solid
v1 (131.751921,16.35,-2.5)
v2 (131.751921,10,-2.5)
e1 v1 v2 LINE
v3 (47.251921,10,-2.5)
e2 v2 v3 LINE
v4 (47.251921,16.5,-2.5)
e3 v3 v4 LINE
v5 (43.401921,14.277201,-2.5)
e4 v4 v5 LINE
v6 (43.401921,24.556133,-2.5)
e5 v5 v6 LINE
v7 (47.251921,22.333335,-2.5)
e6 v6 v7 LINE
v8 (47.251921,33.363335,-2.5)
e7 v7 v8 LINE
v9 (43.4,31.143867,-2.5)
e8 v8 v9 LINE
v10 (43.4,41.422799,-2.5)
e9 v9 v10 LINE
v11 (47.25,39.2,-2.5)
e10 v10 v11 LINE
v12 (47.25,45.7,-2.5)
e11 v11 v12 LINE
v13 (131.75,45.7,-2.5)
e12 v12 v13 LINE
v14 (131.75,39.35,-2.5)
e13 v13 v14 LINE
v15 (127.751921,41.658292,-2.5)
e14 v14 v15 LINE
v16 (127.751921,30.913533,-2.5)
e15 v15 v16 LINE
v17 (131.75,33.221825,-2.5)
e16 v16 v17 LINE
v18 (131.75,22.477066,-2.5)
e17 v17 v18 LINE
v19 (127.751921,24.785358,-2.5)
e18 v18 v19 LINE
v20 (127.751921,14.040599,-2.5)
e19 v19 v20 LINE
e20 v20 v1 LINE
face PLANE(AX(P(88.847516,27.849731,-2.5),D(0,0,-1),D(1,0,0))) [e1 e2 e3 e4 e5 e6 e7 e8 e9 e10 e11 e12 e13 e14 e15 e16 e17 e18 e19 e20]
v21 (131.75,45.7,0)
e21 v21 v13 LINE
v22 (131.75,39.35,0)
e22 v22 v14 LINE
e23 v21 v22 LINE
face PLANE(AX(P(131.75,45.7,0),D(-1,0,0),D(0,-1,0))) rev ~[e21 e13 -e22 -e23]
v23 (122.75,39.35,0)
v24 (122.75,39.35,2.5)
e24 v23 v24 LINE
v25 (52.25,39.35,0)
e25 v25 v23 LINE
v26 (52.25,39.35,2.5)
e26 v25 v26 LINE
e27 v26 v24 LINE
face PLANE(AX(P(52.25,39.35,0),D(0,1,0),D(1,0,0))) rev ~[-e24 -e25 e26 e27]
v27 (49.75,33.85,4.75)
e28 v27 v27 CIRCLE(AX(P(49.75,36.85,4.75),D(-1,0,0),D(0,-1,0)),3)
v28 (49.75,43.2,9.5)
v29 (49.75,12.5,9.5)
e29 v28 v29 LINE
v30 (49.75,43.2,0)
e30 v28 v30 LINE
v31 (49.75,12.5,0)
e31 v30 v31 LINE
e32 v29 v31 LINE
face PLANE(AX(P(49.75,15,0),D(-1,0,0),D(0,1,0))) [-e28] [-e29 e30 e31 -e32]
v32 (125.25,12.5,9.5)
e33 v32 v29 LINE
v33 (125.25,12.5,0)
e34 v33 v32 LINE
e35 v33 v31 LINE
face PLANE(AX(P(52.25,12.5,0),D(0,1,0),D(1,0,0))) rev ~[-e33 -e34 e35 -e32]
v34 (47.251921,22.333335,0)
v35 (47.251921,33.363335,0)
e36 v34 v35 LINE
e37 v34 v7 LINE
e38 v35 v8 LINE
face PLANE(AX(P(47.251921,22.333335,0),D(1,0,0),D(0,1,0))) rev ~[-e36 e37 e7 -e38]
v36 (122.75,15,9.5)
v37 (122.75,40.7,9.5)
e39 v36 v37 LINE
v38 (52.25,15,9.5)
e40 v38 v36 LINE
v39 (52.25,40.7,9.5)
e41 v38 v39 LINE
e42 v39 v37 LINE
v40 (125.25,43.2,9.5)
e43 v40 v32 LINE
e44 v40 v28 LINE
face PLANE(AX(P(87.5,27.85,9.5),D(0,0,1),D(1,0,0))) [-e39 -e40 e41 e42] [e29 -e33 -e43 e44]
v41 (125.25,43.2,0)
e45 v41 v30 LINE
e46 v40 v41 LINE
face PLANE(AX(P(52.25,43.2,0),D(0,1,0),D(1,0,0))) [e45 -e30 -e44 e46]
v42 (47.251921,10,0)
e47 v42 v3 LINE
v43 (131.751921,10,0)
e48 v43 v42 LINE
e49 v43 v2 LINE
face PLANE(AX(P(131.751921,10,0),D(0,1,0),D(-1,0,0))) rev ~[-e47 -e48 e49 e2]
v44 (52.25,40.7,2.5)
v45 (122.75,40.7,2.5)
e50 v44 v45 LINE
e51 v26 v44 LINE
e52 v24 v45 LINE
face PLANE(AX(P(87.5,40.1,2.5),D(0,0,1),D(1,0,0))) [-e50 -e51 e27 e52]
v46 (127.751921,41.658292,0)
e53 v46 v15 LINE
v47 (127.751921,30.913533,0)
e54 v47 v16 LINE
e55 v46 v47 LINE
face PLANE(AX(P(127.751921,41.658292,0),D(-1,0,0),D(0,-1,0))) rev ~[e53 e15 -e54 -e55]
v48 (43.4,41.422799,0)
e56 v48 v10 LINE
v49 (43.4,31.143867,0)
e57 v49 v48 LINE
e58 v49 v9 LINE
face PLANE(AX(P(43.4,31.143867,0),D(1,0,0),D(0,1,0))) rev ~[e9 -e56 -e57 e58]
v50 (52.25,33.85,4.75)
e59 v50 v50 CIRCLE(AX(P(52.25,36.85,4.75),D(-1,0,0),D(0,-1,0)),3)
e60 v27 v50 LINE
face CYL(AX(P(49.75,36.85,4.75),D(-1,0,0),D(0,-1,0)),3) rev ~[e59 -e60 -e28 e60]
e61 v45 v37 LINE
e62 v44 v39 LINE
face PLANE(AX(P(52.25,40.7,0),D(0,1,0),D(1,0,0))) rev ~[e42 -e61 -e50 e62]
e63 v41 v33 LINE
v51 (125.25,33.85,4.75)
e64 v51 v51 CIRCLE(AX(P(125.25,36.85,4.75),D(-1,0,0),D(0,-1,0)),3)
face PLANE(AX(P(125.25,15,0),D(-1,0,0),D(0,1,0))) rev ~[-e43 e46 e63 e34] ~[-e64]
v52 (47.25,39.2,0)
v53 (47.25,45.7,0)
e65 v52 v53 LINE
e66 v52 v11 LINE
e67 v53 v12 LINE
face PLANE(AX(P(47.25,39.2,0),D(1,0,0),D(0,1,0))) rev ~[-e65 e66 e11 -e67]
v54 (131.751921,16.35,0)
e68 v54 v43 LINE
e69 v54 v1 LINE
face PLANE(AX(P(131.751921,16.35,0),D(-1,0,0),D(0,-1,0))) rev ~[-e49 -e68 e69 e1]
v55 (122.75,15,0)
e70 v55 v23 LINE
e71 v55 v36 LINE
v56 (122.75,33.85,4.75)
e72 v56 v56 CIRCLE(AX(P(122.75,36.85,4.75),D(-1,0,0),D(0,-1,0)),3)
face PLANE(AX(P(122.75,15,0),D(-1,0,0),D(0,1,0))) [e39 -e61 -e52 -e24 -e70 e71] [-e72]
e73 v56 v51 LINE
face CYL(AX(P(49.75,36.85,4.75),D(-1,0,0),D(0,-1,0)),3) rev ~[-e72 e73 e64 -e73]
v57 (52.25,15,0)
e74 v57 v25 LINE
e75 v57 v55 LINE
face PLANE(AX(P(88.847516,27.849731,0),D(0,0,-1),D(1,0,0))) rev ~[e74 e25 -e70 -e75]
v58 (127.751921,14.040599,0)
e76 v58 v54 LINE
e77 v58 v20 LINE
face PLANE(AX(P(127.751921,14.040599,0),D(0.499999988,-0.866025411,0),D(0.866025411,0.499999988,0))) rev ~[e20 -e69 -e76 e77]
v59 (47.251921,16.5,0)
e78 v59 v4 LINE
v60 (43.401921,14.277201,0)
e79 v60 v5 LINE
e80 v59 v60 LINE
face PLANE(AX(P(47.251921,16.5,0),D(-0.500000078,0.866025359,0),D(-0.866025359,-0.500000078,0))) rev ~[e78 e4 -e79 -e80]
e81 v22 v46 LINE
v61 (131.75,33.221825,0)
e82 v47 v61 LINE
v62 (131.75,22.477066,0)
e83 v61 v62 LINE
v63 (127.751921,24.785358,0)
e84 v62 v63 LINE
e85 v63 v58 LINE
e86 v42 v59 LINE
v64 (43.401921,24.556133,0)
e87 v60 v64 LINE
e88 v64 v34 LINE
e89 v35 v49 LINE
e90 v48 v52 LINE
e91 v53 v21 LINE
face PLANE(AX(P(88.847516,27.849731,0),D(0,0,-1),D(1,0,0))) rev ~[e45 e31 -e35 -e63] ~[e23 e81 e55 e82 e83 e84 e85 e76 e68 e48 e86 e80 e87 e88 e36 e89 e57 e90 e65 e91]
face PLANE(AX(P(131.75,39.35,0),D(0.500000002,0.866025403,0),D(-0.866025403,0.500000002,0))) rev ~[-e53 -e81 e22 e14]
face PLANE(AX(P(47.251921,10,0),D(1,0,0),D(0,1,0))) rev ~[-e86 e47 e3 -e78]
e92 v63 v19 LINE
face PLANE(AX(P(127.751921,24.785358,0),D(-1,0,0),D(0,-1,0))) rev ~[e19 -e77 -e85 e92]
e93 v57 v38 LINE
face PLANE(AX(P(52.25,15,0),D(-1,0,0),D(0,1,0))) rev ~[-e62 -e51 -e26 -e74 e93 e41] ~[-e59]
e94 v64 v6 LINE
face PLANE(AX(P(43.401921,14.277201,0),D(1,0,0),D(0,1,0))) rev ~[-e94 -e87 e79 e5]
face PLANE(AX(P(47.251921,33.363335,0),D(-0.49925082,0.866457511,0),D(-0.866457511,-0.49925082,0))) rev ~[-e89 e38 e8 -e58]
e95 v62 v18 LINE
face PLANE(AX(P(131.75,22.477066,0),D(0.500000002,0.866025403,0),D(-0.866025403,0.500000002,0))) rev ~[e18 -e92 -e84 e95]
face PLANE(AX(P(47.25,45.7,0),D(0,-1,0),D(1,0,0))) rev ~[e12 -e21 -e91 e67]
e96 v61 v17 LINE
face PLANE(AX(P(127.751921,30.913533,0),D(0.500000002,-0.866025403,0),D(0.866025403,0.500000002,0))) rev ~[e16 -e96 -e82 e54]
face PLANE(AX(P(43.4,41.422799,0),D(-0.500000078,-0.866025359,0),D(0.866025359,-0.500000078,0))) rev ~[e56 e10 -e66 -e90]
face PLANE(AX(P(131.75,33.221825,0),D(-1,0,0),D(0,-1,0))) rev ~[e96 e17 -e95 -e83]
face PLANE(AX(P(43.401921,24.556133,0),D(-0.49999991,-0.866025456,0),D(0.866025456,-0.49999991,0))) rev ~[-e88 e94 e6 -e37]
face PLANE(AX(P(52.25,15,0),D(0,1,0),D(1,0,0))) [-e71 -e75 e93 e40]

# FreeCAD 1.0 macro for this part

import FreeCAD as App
import Part
import Sketcher

V = App.Vector
Q = App.Units.Quantity


def faces_at(feature, points):
    """Names of the faces that lie closest to the given points."""
    faces = feature.Shape.Faces
    near = lambda p: min(range(len(faces)), key=lambda i: faces[i].distToShape(Part.Vertex(*p))[0])
    return sorted({f"Face{near(p) + 1}" for p in points})

doc = App.newDocument("Part")
params = doc.addObject("Spreadsheet::Sheet", "Params")
for row, (alias, value) in enumerate([
    ("sketch1_width", "70.5 mm"),
    ("sketch1_height", "25.7 mm"),
    ("pad1_length", "9.5 mm"),
    ("thickness_wall", "2.5 mm"),
    ("sketch2_diameter", "6 mm"),
    ("sketch3_width", "70.5 mm"),
    ("sketch3_height", "1.5 mm"),
    ("pad2_length", "2.5 mm"),
    ("sketch4_width", "84.5 mm"),
    ("sketch4_height", "6.5 mm"),
    ("sketch4_height2", "6.35 mm"),
    ("sketch4_height3", "11.03 mm"),
    ("pad3_length", "2.5 mm"),
], start=1):
    params.set(f"A{row}", alias)
    params.set(f"B{row}", "=" + value)
    params.setAlias(f"B{row}", alias)

body = doc.addObject("PartDesign::Body", "Body")

# Sketch on XY plane
sketch1 = body.newObject("Sketcher::SketchObject", "Sketch")
sketch1.AttachmentSupport = (doc.getObject("XY_Plane"), [""])
sketch1.MapMode = "FlatFace"
sketch1.addGeometry([
    Part.LineSegment(V(-35, -35, 0), V(-35, -61, 0)),
    Part.LineSegment(V(-35, -61, 0), V(35, -61, 0)),
    Part.LineSegment(V(35, -61, 0), V(35, -35, 0)),
    Part.LineSegment(V(35, -35, 0), V(-35, -35, 0)),
], False)
sketch1.addConstraint([
    Sketcher.Constraint("Coincident", 0, 2, 1, 1),
    Sketcher.Constraint("Coincident", 1, 2, 2, 1),
    Sketcher.Constraint("Coincident", 2, 2, 3, 1),
    Sketcher.Constraint("Coincident", 3, 2, 0, 1),
    Sketcher.Constraint("Vertical", 0),
    Sketcher.Constraint("Horizontal", 1),
    Sketcher.Constraint("Vertical", 2),
    Sketcher.Constraint("Horizontal", 3),
    Sketcher.Constraint("DistanceX", 1, 1, 1, 2, 70.5),
    Sketcher.Constraint("DistanceY", 0, 2, 0, 1, 25.7),
    Sketcher.Constraint("DistanceX", 0, 2, -1, 1, 35.25),
    Sketcher.Constraint("DistanceY", 0, 2, -1, 1, 60.85),
])
sketch1.setExpression("Constraints[8]", "Params.sketch1_width")
sketch1.setExpression("Constraints[9]", "Params.sketch1_height")
pad1 = body.newObject("PartDesign::Pad", "Pad")
pad1.Profile = sketch1
pad1.setExpression("Length", "Params.pad1_length")
doc.recompute()

thickness = body.newObject("PartDesign::Thickness", "Thickness")
thickness.Base = (pad1, faces_at(pad1, [(0, -48, 9.5), (0, -48, 0)]))
thickness.setExpression("Value", "Params.thickness_wall")
thickness.Reversed = False
thickness.Join = "Intersection"

# Sketch on YZ plane
sketch2 = body.newObject("Sketcher::SketchObject", "Sketch001")
sketch2.AttachmentSupport = (doc.getObject("YZ_Plane"), [""])
sketch2.MapMode = "FlatFace"
sketch2.AttachmentOffset = App.Placement(V(0, 0, -37.75), App.Rotation())
sketch2.addGeometry(Part.Circle(V(-39, 4.8, 0), V(0, 0, 1), 3), False)
sketch2.addConstraint([
    Sketcher.Constraint("Diameter", 0, 6.0),
    Sketcher.Constraint("DistanceX", 0, 3, -1, 1, 39.0),
    Sketcher.Constraint("DistanceY", -1, 1, 0, 3, 4.75),
])
sketch2.setExpression("Constraints[0]", "Params.sketch2_diameter")
pocket1 = body.newObject("PartDesign::Pocket", "Pocket")
pocket1.Profile = sketch2
pocket1.Type = "ThroughAll"
pocket1.Reversed = True

# Sketch on XY plane
sketch3 = body.newObject("Sketcher::SketchObject", "Sketch002")
sketch3.AttachmentSupport = (doc.getObject("XY_Plane"), [""])
sketch3.MapMode = "FlatFace"
sketch3.addGeometry([
    Part.LineSegment(V(-35.2, -35, 0), V(-35.2, -36.5, 0)),
    Part.LineSegment(V(-35.2, -36.5, 0), V(35.2, -36.5, 0)),
    Part.LineSegment(V(35.2, -36.5, 0), V(35.2, -35, 0)),
    Part.LineSegment(V(35.2, -35, 0), V(-35.2, -35, 0)),
], False)
sketch3.addConstraint([
    Sketcher.Constraint("Coincident", 0, 2, 1, 1),
    Sketcher.Constraint("Coincident", 1, 2, 2, 1),
    Sketcher.Constraint("Coincident", 2, 2, 3, 1),
    Sketcher.Constraint("Coincident", 3, 2, 0, 1),
    Sketcher.Constraint("Vertical", 0),
    Sketcher.Constraint("Horizontal", 1),
    Sketcher.Constraint("Vertical", 2),
    Sketcher.Constraint("Horizontal", 3),
    Sketcher.Constraint("DistanceX", 1, 1, 1, 2, 70.5),
    Sketcher.Constraint("DistanceY", 0, 2, 0, 1, 1.5),
    Sketcher.Constraint("DistanceY", 2, 2, -1, 1, 35.0),
    Sketcher.Constraint("DistanceX", 0, 2, -1, 1, 35.25),
])
sketch3.setExpression("Constraints[8]", "Params.sketch3_width")
sketch3.setExpression("Constraints[9]", "Params.sketch3_height")
pad2 = body.newObject("PartDesign::Pad", "Pad001")
pad2.Profile = sketch3
pad2.setExpression("Length", "Params.pad2_length")
body2 = doc.addObject("PartDesign::Body", "Body001")
doc.recompute()

body.Placement = App.Placement(V(84.5, 36.85, 0), App.Rotation(V(0, 0, 1), 0))
boolean = body2.newObject("PartDesign::Boolean", "Boolean")
boolean.Type = "Fuse"
boolean.addObjects([body])
body3 = doc.addObject("PartDesign::Body", "Body002")

# Sketch on XY plane
sketch4 = body3.newObject("Sketcher::SketchObject", "Sketch003")
sketch4.AttachmentSupport = (doc.getObject("XY_Plane002"), [""])
sketch4.MapMode = "FlatFace"
sketch4.addGeometry([
    Part.LineSegment(V(-40.2, -30.1, 0), V(44.2, -30.1, 0)),  # 0
    Part.LineSegment(V(44.2, -30.1, 0), V(44.2, -36.5, 0)),  # 1
    Part.LineSegment(V(44.2, -36.5, 0), V(40.3, -34.2, 0)),  # 2
    Part.LineSegment(V(40.3, -34.2, 0), V(40.3, -44.9, 0)),  # 3
    Part.LineSegment(V(40.3, -44.9, 0), V(44.2, -42.6, 0)),  # 4
    Part.LineSegment(V(44.2, -42.6, 0), V(44.2, -53.4, 0)),  # 5
    Part.LineSegment(V(44.2, -53.4, 0), V(40.3, -51.1, 0)),  # 6
    Part.LineSegment(V(40.3, -51.1, 0), V(40.3, -61.8, 0)),  # 7
    Part.LineSegment(V(40.3, -61.8, 0), V(44.3, -59.5, 0)),  # 8
    Part.LineSegment(V(44.3, -59.5, 0), V(44.3, -65.8, 0)),  # 9
    Part.LineSegment(V(44.3, -65.8, 0), V(-40.2, -65.8, 0)),  # 10
    Part.LineSegment(V(-40.2, -65.8, 0), V(-40.2, -59.4, 0)),  # 11
    Part.LineSegment(V(-40.2, -59.4, 0), V(-44.1, -61.6, 0)),  # 12
    Part.LineSegment(V(-44.1, -61.6, 0), V(-44.1, -51.3, 0)),  # 13
    Part.LineSegment(V(-44.1, -51.3, 0), V(-40.2, -53.5, 0)),  # 14
    Part.LineSegment(V(-40.2, -53.5, 0), V(-40.2, -42.5, 0)),  # 15
    Part.LineSegment(V(-40.2, -42.5, 0), V(-44.1, -44.7, 0)),  # 16
    Part.LineSegment(V(-44.1, -44.7, 0), V(-44.1, -34.4, 0)),  # 17
    Part.LineSegment(V(-44.1, -34.4, 0), V(-40.2, -36.6, 0)),  # 18
    Part.LineSegment(V(-40.2, -36.6, 0), V(-40.2, -30.1, 0)),  # 19
], False)
sketch4.addConstraint([
    Sketcher.Constraint("Coincident", 0, 2, 1, 1),
    Sketcher.Constraint("Coincident", 1, 2, 2, 1),
    Sketcher.Constraint("Coincident", 2, 2, 3, 1),
    Sketcher.Constraint("Coincident", 3, 2, 4, 1),
    Sketcher.Constraint("Coincident", 4, 2, 5, 1),
    Sketcher.Constraint("Coincident", 5, 2, 6, 1),
    Sketcher.Constraint("Coincident", 6, 2, 7, 1),
    Sketcher.Constraint("Coincident", 7, 2, 8, 1),
    Sketcher.Constraint("Coincident", 8, 2, 9, 1),
    Sketcher.Constraint("Coincident", 9, 2, 10, 1),
    Sketcher.Constraint("Coincident", 10, 2, 11, 1),
    Sketcher.Constraint("Coincident", 11, 2, 12, 1),
    Sketcher.Constraint("Coincident", 12, 2, 13, 1),
    Sketcher.Constraint("Coincident", 13, 2, 14, 1),
    Sketcher.Constraint("Coincident", 14, 2, 15, 1),
    Sketcher.Constraint("Coincident", 15, 2, 16, 1),
    Sketcher.Constraint("Coincident", 16, 2, 17, 1),
    Sketcher.Constraint("Coincident", 17, 2, 18, 1),
    Sketcher.Constraint("Coincident", 18, 2, 19, 1),
    Sketcher.Constraint("Coincident", 19, 2, 0, 1),
    Sketcher.Constraint("Horizontal", 0),
    Sketcher.Constraint("Vertical", 1),
    Sketcher.Constraint("Vertical", 3),
    Sketcher.Constraint("Vertical", 5),
    Sketcher.Constraint("Vertical", 7),
    Sketcher.Constraint("Vertical", 9),
    Sketcher.Constraint("Horizontal", 10),
    Sketcher.Constraint("Vertical", 11),
    Sketcher.Constraint("Vertical", 13),
    Sketcher.Constraint("Vertical", 15),
    Sketcher.Constraint("Vertical", 17),
    Sketcher.Constraint("Vertical", 19),
    Sketcher.Constraint("Parallel", 2, 6),
    Sketcher.Constraint("Parallel", 4, 8),
    Sketcher.Constraint("Parallel", 8, 12),
    Sketcher.Constraint("Parallel", 6, 14),
    Sketcher.Constraint("Parallel", 14, 18),
    Sketcher.Constraint("Vertical", 1, 2, 4, 2),
    Sketcher.Constraint("Vertical", 3, 2, 6, 2),
    Sketcher.Constraint("Vertical", 11, 2, 14, 2),
    Sketcher.Constraint("Equal", 0, 10),
    Sketcher.Constraint("Equal", 3, 5),
    Sketcher.Constraint("Equal", 5, 7),
    Sketcher.Constraint("Equal", 1, 9),
    Sketcher.Constraint("Equal", 13, 17),
    Sketcher.Constraint("Equal", 11, 19),
    Sketcher.Constraint("Equal", 2, 4),
    Sketcher.Constraint("Equal", 14, 16),
    Sketcher.Constraint("Equal", 16, 18),
    Sketcher.Constraint("Angle", 2, Q("150 deg")),
    Sketcher.Constraint("DistanceX", 0, 1, 0, 2, 84.5),
    Sketcher.Constraint("DistanceY", 11, 1, 11, 2, 6.5),
    Sketcher.Constraint("DistanceX", 7, 2, 8, 2, 4.0),
    Sketcher.Constraint("DistanceY", 1, 2, 1, 1, 6.35),
    Sketcher.Constraint("DistanceY", 15, 1, 15, 2, 11.03),
    Sketcher.Constraint("DistanceY", 1, 2, -1, 1, 36.5),
    Sketcher.Constraint("DistanceY", 8, 2, -1, 1, 59.5),
    Sketcher.Constraint("DistanceX", 16, 2, -1, 1, 44.1),
    Sketcher.Constraint("DistanceX", -1, 1, 0, 2, 44.25),
    Sketcher.Constraint("DistanceY", 3, 2, 3, 1, 10.744759),
])
sketch4.setExpression("Constraints[50]", "Params.sketch4_width")
sketch4.setExpression("Constraints[51]", "Params.sketch4_height")
sketch4.setExpression("Constraints[53]", "Params.sketch4_height2")
sketch4.setExpression("Constraints[54]", "Params.sketch4_height3")
pad3 = body3.newObject("PartDesign::Pad", "Pad002")
pad3.Profile = sketch4
pad3.setExpression("Length", "Params.pad3_length")
pad3.Reversed = True
body4 = doc.addObject("PartDesign::Body", "Body003")
doc.recompute()

body3.Placement = App.Placement(V(84.5, 36.85, 0), App.Rotation(V(0, 0, 1), 0))
boolean2 = body4.newObject("PartDesign::Boolean", "Boolean001")
boolean2.Type = "Fuse"
boolean2.addObjects([body3])
doc.recompute()

boolean3 = body4.newObject("PartDesign::Boolean", "Boolean002")
boolean3.Type = "Fuse"
boolean3.addObjects([body2])
body5 = doc.addObject("PartDesign::Body", "Body004")
doc.recompute()

body4.Placement = App.Placement(V(3, 39, 0), App.Rotation(V(0, 0, 1), 0))
boolean4 = body5.newObject("PartDesign::Boolean", "Boolean003")
boolean4.Type = "Fuse"
boolean4.addObjects([body4])

doc.recompute()
